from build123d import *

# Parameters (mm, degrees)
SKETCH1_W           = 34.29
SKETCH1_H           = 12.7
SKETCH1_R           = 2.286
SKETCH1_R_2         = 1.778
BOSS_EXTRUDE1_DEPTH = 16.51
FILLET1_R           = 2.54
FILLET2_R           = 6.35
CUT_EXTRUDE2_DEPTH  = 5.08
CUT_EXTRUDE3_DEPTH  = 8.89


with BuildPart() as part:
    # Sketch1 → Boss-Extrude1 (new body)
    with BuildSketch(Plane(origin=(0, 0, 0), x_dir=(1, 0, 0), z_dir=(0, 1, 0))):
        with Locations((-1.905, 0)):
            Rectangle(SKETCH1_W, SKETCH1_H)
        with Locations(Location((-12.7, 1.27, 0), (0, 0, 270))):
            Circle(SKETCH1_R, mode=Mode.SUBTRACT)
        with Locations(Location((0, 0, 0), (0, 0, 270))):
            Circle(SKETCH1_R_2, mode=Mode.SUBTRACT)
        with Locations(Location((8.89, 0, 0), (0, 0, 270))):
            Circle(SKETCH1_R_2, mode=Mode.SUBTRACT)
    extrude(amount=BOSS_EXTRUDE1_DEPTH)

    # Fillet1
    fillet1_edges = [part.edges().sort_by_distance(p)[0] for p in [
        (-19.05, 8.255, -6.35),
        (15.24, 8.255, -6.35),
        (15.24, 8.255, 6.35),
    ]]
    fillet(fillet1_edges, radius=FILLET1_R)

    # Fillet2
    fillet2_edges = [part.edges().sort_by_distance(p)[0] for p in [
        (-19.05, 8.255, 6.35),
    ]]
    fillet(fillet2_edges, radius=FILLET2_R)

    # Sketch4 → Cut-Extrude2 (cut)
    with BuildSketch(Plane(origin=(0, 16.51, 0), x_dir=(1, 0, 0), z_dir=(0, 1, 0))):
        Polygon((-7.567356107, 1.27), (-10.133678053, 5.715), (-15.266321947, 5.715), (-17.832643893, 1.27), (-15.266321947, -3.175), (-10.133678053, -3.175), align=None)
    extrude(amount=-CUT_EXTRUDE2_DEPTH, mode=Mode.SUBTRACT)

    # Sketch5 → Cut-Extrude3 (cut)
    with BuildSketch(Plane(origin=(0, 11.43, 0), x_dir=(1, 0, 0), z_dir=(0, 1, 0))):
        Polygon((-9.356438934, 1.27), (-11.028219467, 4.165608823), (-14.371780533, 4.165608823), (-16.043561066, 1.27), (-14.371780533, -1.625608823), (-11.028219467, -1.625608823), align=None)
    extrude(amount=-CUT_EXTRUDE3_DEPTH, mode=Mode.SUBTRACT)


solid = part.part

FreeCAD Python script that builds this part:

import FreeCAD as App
import Part
import Sketcher
Q = App.Units.Quantity


def edges_at(feature, points):
    """Names of the edges that pass closest to the given points."""
    edges = feature.Shape.Edges
    near = lambda p: min(range(len(edges)), key=lambda i: edges[i].distToShape(Part.Vertex(*p))[0])
    return sorted({f"Edge{near(p) + 1}" for p in points})

doc = App.newDocument("Part")
body = doc.addObject("PartDesign::Body", "Body")

# Sketch on XZ plane
sketch1 = body.newObject("Sketcher::SketchObject", "Sketch")
sketch1.AttachmentSupport = (doc.getObject("XZ_Plane"), [""])
sketch1.MapMode = "FlatFace"
sketch1.addGeometry([
    Part.LineSegment(App.Vector(-19.1, -6.3, 0), App.Vector(-19.1, 6.3, 0)),  # 0
    Part.LineSegment(App.Vector(-19.1, 6.3, 0), App.Vector(15.2, 6.3, 0)),  # 1
    Part.LineSegment(App.Vector(15.2, 6.3, 0), App.Vector(15.2, -6.3, 0)),  # 2
    Part.LineSegment(App.Vector(15.2, -6.3, 0), App.Vector(-19.1, -6.3, 0)),  # 3
    Part.Circle(App.Vector(0, 0, 0), App.Vector(0, 0, 1), 1.8),  # 4
    Part.Circle(App.Vector(8.9, 0, 0), App.Vector(0, 0, 1), 1.8),  # 5
    Part.Circle(App.Vector(-12.7, -1.3, 0), App.Vector(0, 0, 1), 2.3),  # 6
], False)
sketch1.addConstraint([
    Sketcher.Constraint("Coincident", 0, 2, 1, 1),
    Sketcher.Constraint("Coincident", 1, 2, 2, 1),
    Sketcher.Constraint("Coincident", 2, 2, 3, 1),
    Sketcher.Constraint("Coincident", 3, 2, 0, 1),
    Sketcher.Constraint("Vertical", 0),
    Sketcher.Constraint("Horizontal", 1),
    Sketcher.Constraint("Vertical", 2),
    Sketcher.Constraint("Horizontal", 3),
    Sketcher.Constraint("Coincident", 4, 3, -1, 1),
    Sketcher.Constraint("Equal", 4, 5),
    Sketcher.Constraint("PointOnObject", 5, 3, -1),
    Sketcher.Constraint("Diameter", 4, Q("0.14 in")),
    Sketcher.Constraint("Diameter", 6, Q("0.18 in")),
    Sketcher.Constraint("DistanceY", 0, 1, 0, 2, Q("0.5 in")),
    Sketcher.Constraint("DistanceX", 1, 1, 1, 2, Q("1.35 in")),
    Sketcher.Constraint("DistanceX", 6, 3, -1, 1, Q("0.5 in")),
    Sketcher.Constraint("DistanceX", -1, 1, 1, 2, Q("0.6 in")),
    Sketcher.Constraint("DistanceY", 6, 3, 0, 2, Q("0.3 in")),
    Sketcher.Constraint("DistanceX", 0, 2, 5, 3, Q("1.1 in")),
    Sketcher.Constraint("DistanceY", 6, 3, -1, 1, Q("0.05 in")),
])
pad1 = body.newObject("PartDesign::Pad", "Pad")
pad1.Profile = sketch1
pad1.Length = Q("0.65 in")
pad1.Reversed = True
doc.recompute()

fillet = body.newObject("PartDesign::Fillet", "Fillet")
fillet.Base = (pad1, edges_at(pad1, [(-19.05, 8.255, -6.35), (15.24, 8.255, -6.35), (15.24, 8.255, 6.35)]))
fillet.Radius = Q("0.1 in")
doc.recompute()

fillet2 = body.newObject("PartDesign::Fillet", "Fillet001")
fillet2.Base = (fillet, edges_at(fillet, [(-19.05, 8.255, 6.35)]))
fillet2.Radius = Q("0.25 in")

# Sketch on XZ plane
sketch2 = body.newObject("Sketcher::SketchObject", "Sketch001")
sketch2.AttachmentSupport = (doc.getObject("XZ_Plane"), [""])
sketch2.MapMode = "FlatFace"
sketch2.AttachmentOffset = App.Placement(App.Vector(0, 0, -0.65 * 25.4), App.Rotation())
sketch2.addGeometry([
    Part.LineSegment(App.Vector(-8, -1, 0), App.Vector(-10, -6, 0)),  # 0
    Part.LineSegment(App.Vector(-10, -6, 0), App.Vector(-15, -6, 0)),  # 1
    Part.LineSegment(App.Vector(-15, -6, 0), App.Vector(-18, -1, 0)),  # 2
    Part.LineSegment(App.Vector(-18, -1, 0), App.Vector(-15, 3, 0)),  # 3
    Part.LineSegment(App.Vector(-15, 3, 0), App.Vector(-10, 3, 0)),  # 4
    Part.LineSegment(App.Vector(-10, 3, 0), App.Vector(-8, -1, 0)),  # 5
], False)
sketch2.addConstraint([
    Sketcher.Constraint("Coincident", 0, 2, 1, 1),
    Sketcher.Constraint("Coincident", 1, 2, 2, 1),
    Sketcher.Constraint("Coincident", 2, 2, 3, 1),
    Sketcher.Constraint("Coincident", 3, 2, 4, 1),
    Sketcher.Constraint("Coincident", 4, 2, 5, 1),
    Sketcher.Constraint("Coincident", 5, 2, 0, 1),
    Sketcher.Constraint("Horizontal", 1),
    Sketcher.Constraint("Horizontal", 4),
    Sketcher.Constraint("Parallel", 0, 3),
    Sketcher.Constraint("Parallel", 2, 5),
    Sketcher.Constraint("Horizontal", 2, 2, 5, 2),
    Sketcher.Constraint("Vertical", 1, 2, 3, 2),
    Sketcher.Constraint("Vertical", 0, 2, 4, 2),
    Sketcher.Constraint("Angle", 0, Q("-120 deg")),
    Sketcher.Constraint("DistanceY", 2, 2, -1, 1, Q("0.05 in")),
    Sketcher.Constraint("DistanceY", 1, 2, 3, 2, Q("0.35 in")),
    Sketcher.Constraint("DistanceX", 1, 2, 1, 1, 5.132644),
    Sketcher.Constraint("DistanceX", 0, 2, -1, 1, 10.133678),
])
pocket1 = body.newObject("PartDesign::Pocket", "Pocket")
pocket1.Profile = sketch2
pocket1.Length = Q("0.2 in")
pocket1.Reversed = True

# Sketch on XZ plane
sketch3 = body.newObject("Sketcher::SketchObject", "Sketch002")
sketch3.AttachmentSupport = (doc.getObject("XZ_Plane"), [""])
sketch3.MapMode = "FlatFace"
sketch3.AttachmentOffset = App.Placement(App.Vector(0, 0, -0.45 * 25.4), App.Rotation())
sketch3.addGeometry([
    Part.LineSegment(App.Vector(-9.4, -1.3, 0), App.Vector(-11, -4.2, 0)),  # 0
    Part.LineSegment(App.Vector(-11, -4.2, 0), App.Vector(-14.4, -4.2, 0)),  # 1
    Part.LineSegment(App.Vector(-14.4, -4.2, 0), App.Vector(-16, -1.3, 0)),  # 2
    Part.LineSegment(App.Vector(-16, -1.3, 0), App.Vector(-14.4, 1.6, 0)),  # 3
    Part.LineSegment(App.Vector(-14.4, 1.6, 0), App.Vector(-11, 1.6, 0)),  # 4
    Part.LineSegment(App.Vector(-11, 1.6, 0), App.Vector(-9.4, -1.3, 0)),  # 5
], False)
sketch3.addConstraint([
    Sketcher.Constraint("Coincident", 0, 2, 1, 1),
    Sketcher.Constraint("Coincident", 1, 2, 2, 1),
    Sketcher.Constraint("Coincident", 2, 2, 3, 1),
    Sketcher.Constraint("Coincident", 3, 2, 4, 1),
    Sketcher.Constraint("Coincident", 4, 2, 5, 1),
    Sketcher.Constraint("Coincident", 5, 2, 0, 1),
    Sketcher.Constraint("Horizontal", 1),
    Sketcher.Constraint("Horizontal", 4),
    Sketcher.Constraint("Parallel", 0, 3),
    Sketcher.Constraint("Parallel", 2, 5),
    Sketcher.Constraint("Horizontal", 2, 2, 5, 2),
    Sketcher.Constraint("Vertical", 1, 2, 3, 2),
    Sketcher.Constraint("Vertical", 0, 2, 4, 2),
    Sketcher.Constraint("Angle", 0, Q("-120 deg")),
    Sketcher.Constraint("DistanceY", 2, 2, -1, 1, Q("0.05 in")),
    Sketcher.Constraint("DistanceX", 1, 2, 1, 1, 3.343561),
    Sketcher.Constraint("Distance", 0, 3.343561),
    Sketcher.Constraint("DistanceX", 0, 2, -1, 1, 11.028219),
])
pocket2 = body.newObject("PartDesign::Pocket", "Pocket001")
pocket2.Profile = sketch3
pocket2.Length = Q("0.35 in")
pocket2.Reversed = True

doc.recompute()
